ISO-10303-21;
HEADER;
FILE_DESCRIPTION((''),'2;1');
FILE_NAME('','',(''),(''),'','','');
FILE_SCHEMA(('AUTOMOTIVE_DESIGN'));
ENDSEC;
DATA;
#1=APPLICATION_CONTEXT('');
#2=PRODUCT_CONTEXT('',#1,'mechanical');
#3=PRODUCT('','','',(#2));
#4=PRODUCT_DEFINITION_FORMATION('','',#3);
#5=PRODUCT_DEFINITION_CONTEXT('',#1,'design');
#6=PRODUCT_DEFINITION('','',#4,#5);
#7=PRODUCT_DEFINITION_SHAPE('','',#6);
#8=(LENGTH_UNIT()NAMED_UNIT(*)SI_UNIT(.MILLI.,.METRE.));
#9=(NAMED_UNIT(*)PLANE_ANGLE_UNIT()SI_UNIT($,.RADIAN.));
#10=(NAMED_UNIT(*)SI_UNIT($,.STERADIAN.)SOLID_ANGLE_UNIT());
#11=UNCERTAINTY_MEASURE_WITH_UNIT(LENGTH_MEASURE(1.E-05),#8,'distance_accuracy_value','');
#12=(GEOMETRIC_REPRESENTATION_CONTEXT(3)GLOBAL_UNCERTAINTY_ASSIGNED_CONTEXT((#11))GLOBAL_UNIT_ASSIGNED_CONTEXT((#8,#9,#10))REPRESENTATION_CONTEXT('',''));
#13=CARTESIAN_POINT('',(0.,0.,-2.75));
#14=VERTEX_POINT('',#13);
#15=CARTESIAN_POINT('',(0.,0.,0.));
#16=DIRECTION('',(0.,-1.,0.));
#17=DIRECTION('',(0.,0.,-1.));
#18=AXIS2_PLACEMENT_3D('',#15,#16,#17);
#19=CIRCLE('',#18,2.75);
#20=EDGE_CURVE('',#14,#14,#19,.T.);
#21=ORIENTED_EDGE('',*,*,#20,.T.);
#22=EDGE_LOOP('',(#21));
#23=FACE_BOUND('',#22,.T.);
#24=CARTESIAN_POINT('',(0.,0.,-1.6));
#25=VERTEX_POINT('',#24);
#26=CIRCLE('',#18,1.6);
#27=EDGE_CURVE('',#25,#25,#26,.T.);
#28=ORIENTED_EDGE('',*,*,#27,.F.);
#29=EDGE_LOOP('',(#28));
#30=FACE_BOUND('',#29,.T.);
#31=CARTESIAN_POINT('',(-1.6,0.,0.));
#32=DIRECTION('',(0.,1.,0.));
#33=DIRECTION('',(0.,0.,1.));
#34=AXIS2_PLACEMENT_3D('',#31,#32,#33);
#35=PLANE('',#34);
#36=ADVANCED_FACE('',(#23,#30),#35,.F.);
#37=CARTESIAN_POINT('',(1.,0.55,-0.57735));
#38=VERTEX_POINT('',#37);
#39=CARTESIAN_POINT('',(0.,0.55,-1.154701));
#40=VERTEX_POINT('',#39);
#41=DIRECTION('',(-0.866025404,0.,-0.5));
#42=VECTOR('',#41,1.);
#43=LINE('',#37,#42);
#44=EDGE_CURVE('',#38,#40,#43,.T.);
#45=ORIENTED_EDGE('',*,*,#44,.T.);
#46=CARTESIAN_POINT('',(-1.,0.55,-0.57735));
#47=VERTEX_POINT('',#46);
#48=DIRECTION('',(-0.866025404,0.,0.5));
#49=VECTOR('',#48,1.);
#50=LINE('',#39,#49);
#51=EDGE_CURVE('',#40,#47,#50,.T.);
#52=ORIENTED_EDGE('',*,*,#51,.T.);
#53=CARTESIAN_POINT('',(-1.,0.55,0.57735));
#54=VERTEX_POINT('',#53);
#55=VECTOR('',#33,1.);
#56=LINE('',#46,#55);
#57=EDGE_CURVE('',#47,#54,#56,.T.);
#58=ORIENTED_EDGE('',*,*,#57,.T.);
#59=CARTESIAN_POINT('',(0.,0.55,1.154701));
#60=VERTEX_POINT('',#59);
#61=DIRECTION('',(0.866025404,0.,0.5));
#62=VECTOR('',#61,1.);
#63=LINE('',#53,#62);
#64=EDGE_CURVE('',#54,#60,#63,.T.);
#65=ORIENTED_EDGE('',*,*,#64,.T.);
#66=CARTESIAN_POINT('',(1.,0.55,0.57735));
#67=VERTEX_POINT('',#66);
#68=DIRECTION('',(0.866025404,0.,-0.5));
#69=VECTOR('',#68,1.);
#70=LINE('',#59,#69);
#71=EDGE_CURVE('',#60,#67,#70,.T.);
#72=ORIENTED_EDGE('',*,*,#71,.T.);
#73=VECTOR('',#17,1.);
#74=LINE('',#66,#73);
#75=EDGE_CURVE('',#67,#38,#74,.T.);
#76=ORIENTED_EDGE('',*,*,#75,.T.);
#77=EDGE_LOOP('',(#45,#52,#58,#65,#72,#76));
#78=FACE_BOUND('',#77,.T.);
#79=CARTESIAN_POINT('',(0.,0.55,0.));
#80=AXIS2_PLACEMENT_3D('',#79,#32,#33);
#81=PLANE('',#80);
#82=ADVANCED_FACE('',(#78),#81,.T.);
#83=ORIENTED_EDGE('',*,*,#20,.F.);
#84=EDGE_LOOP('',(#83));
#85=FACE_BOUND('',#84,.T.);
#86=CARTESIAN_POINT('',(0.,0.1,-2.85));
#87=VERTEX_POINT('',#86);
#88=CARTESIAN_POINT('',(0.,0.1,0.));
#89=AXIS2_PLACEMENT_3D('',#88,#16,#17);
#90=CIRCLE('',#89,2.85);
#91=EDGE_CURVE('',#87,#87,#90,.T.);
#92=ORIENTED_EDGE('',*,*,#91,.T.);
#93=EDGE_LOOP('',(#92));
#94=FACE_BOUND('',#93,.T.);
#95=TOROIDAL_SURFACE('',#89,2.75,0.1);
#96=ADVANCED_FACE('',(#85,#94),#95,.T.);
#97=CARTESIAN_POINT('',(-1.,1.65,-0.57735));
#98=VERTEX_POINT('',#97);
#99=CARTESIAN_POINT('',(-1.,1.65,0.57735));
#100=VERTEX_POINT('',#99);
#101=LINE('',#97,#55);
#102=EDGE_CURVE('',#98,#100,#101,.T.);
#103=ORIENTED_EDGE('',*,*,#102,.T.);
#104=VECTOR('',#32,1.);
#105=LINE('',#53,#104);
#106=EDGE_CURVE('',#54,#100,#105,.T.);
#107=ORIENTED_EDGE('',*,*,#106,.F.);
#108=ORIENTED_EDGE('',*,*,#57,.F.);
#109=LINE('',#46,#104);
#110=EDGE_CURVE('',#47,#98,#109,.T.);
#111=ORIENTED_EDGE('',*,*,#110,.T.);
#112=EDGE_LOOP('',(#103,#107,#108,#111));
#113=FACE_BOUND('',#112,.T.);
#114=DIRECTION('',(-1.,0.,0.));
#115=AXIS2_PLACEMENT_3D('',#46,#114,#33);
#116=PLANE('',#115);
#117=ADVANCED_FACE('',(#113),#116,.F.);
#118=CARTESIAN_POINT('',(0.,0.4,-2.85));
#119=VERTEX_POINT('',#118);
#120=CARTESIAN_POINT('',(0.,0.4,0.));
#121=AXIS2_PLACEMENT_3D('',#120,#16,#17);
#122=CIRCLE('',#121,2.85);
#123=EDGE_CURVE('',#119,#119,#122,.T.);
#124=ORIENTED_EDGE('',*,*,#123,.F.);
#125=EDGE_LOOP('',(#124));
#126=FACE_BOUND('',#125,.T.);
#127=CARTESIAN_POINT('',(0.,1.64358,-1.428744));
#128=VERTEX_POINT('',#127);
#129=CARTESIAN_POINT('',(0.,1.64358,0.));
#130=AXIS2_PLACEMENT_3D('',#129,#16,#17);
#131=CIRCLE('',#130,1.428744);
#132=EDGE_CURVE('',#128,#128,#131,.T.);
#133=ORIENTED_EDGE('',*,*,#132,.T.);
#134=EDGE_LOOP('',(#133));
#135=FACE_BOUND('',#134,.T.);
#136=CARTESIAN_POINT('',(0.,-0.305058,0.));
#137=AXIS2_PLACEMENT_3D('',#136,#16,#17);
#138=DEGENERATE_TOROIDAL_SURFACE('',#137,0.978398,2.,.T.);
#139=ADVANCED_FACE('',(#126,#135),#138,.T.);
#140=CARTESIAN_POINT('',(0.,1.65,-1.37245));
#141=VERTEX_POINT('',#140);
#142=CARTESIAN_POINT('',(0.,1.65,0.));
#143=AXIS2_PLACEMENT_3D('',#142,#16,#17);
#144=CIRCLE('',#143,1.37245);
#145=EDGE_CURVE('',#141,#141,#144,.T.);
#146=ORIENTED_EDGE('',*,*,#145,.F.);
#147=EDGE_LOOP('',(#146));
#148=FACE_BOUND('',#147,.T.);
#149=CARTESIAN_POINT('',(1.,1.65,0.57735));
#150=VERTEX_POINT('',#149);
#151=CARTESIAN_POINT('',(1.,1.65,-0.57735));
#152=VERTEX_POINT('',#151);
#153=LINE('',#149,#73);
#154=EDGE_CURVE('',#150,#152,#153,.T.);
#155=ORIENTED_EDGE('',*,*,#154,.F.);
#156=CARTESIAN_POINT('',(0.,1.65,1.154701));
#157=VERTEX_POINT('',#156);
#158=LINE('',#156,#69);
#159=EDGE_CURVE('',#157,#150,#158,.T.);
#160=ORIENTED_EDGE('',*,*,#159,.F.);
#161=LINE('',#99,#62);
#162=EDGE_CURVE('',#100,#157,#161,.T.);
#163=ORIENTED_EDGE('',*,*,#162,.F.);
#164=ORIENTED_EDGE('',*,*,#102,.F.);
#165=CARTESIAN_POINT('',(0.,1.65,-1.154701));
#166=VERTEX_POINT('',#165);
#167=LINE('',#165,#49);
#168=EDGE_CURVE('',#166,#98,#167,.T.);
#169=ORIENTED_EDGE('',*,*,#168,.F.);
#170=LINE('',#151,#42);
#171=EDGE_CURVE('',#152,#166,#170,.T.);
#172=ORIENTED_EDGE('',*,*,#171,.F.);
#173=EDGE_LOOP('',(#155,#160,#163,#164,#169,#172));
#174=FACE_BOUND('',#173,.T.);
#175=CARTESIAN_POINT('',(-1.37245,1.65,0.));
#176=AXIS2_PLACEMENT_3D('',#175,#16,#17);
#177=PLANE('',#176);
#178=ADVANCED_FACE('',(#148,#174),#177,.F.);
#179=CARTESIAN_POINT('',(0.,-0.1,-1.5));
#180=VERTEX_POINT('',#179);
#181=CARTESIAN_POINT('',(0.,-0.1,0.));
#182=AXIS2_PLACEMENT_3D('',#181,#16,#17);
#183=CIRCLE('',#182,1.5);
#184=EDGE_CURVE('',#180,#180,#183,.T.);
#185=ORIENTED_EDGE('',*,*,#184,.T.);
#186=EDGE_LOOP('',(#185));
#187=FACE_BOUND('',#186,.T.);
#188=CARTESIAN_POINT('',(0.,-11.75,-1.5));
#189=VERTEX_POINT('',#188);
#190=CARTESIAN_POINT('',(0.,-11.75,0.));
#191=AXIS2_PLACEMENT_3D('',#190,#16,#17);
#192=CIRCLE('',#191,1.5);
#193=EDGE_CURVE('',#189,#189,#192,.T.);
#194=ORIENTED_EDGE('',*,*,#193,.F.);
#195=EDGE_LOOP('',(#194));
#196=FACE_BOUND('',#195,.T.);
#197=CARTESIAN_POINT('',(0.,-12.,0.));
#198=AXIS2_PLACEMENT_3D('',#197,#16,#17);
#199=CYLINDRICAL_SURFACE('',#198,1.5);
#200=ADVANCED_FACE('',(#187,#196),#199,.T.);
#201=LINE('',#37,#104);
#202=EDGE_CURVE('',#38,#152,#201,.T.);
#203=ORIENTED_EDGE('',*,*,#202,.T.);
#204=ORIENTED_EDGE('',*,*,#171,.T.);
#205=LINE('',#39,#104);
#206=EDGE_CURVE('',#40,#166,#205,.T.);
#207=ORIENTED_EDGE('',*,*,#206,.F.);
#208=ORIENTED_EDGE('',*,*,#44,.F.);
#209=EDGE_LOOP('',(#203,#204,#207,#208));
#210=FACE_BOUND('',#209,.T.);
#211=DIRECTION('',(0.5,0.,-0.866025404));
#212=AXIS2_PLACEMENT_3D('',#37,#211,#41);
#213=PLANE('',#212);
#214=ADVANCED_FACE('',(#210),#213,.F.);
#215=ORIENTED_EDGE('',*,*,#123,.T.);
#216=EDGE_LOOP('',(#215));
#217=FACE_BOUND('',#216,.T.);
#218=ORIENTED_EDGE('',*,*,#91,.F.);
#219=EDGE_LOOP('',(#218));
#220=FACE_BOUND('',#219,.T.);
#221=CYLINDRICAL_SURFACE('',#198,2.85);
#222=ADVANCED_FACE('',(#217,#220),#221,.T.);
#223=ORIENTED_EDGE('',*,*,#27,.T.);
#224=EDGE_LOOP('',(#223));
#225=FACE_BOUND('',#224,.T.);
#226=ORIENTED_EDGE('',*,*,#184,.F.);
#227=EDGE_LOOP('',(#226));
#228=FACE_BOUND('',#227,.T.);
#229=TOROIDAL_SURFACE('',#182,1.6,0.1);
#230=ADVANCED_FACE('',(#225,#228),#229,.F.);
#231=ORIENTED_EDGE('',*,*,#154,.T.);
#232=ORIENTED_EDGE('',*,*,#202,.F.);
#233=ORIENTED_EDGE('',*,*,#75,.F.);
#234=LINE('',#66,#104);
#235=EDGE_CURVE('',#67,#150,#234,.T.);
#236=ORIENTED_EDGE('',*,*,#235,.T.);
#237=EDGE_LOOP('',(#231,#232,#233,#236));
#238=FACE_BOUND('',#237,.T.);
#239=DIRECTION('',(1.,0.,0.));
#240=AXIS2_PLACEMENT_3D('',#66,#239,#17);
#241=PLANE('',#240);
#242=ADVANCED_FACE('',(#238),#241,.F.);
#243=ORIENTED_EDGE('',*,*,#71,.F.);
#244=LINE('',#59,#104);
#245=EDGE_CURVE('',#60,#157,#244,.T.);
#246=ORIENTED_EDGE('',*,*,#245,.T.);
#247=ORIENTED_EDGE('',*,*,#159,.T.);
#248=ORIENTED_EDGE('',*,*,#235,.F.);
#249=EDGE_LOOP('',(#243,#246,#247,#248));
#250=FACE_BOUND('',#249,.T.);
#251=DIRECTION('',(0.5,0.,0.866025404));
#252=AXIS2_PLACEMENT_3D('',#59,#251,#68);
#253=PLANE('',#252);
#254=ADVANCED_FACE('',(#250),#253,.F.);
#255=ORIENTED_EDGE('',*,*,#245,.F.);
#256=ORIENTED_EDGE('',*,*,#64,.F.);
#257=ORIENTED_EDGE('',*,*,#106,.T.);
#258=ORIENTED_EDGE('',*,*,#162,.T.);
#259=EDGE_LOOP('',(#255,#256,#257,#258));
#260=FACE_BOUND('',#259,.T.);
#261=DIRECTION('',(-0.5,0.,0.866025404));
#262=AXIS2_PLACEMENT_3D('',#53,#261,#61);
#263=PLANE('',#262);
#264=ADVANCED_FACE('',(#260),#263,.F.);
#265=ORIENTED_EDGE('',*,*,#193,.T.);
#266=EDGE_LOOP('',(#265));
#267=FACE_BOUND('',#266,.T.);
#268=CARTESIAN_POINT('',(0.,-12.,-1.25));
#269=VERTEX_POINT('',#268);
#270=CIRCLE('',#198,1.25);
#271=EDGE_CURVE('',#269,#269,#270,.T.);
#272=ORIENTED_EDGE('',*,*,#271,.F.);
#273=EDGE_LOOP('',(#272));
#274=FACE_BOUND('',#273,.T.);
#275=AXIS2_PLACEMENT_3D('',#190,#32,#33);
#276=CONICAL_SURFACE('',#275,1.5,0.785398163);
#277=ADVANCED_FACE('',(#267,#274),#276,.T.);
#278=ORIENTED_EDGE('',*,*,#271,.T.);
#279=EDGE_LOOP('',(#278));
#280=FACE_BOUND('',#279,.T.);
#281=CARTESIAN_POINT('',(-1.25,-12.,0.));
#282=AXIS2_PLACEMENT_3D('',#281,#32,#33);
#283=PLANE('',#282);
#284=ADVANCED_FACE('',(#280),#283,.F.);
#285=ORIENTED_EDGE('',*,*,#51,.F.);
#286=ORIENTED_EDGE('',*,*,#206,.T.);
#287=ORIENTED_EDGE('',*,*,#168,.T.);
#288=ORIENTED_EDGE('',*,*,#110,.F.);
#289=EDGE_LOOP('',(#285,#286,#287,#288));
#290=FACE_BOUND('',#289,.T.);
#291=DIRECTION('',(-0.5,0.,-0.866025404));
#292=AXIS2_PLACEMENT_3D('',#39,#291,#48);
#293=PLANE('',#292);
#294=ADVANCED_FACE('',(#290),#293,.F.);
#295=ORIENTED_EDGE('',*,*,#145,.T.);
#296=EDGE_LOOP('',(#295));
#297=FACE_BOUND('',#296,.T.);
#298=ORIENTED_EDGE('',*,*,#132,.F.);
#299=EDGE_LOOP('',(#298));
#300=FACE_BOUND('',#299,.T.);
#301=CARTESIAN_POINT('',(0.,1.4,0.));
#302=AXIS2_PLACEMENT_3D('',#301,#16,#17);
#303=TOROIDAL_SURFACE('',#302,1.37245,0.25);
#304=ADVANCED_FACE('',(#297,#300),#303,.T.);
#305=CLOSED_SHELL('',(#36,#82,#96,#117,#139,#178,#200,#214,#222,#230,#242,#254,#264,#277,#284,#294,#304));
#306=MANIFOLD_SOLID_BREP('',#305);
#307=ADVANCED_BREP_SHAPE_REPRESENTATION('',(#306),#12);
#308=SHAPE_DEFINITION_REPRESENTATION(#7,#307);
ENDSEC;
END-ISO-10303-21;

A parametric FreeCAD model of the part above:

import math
import FreeCAD as App
import Part
import Sketcher

V = App.Vector
Q = App.Units.Quantity


def add_polygon(sketch, points):
    """Adds a closed chain of lines whose ends are joined by coincident constraints."""
    first, n = sketch.GeometryCount, len(points)
    for a, b in zip(points, points[1:] + points[:1]):
        sketch.addGeometry(Part.LineSegment(App.Vector(*a, 0), App.Vector(*b, 0)), False)
    for i in range(n):
        sketch.addConstraint(Sketcher.Constraint("Coincident", first + i, 2, first + (i + 1) % n, 1))

doc = App.newDocument("Part")
body = doc.addObject("PartDesign::Body", "Body")

sketch1 = doc.addObject("Sketcher::SketchObject", "Sketch")
body.addObject(sketch1)
sketch1.AttachmentSupport = (doc.XY_Plane, [""])
sketch1.MapMode = "FlatFace"
sketch1.addGeometry([
    Part.LineSegment(V(-1.5, -0.1, 0), V(-1.5, -11.75, 0)),
    Part.LineSegment(V(-1.5, -11.75, 0), V(-1.25, -12, 0)),
    Part.LineSegment(V(-1.25, -12, 0), V(0, -12, 0)),
    Part.LineSegment(V(0, -12, 0), V(0, 1.65, 0)),
    Part.LineSegment(V(0, 1.65, 0), V(-1.37, 1.65, 0)),
    Part.ArcOfCircle(Part.Circle(V(-1.37, 1.4, 0), V(0, 0, 1), 0.25), math.radians(90), math.radians(103.01)),
    Part.ArcOfCircle(Part.Circle(V(-0.98, -0.31, 0), V(0, 0, 1), 2), math.radians(103), math.radians(159)),
    Part.LineSegment(V(-2.85, 0.4, 0), V(-2.85, 0.1, 0)),
    Part.ArcOfCircle(Part.Circle(V(-2.75, 0.1, 0), V(0, 0, 1), 0.1), math.radians(180), math.radians(270)),
    Part.LineSegment(V(-2.75, 0, 0), V(-1.6, 0, 0)),
    Part.ArcOfCircle(Part.Circle(V(-1.6, -0.1, 0), V(0, 0, 1), 0.1), math.radians(0), math.radians(90)),
], False)
sketch1.addConstraint([
    Sketcher.Constraint("Coincident", 0, 2, 1, 1),
    Sketcher.Constraint("Coincident", 1, 2, 2, 1),
    Sketcher.Constraint("Coincident", 2, 2, 3, 1),
    Sketcher.Constraint("Coincident", 3, 2, 4, 1),
    Sketcher.Constraint("Tangent", 4, 2, 5, 1),
    Sketcher.Constraint("Tangent", 5, 2, 6, 1),
    Sketcher.Constraint("Coincident", 6, 2, 7, 1),
    Sketcher.Constraint("Tangent", 7, 2, 8, 1),
    Sketcher.Constraint("Tangent", 8, 2, 9, 1),
    Sketcher.Constraint("Tangent", 9, 2, 10, 2),
    Sketcher.Constraint("Tangent", 10, 1, 0, 1),
    Sketcher.Constraint("Vertical", 0),
    Sketcher.Constraint("Horizontal", 2),
    Sketcher.Constraint("Vertical", 3),
    Sketcher.Constraint("Horizontal", 4),
    Sketcher.Constraint("Vertical", 7),
    Sketcher.Constraint("Horizontal", 9),
    Sketcher.Constraint("Equal", 8, 10),
    Sketcher.Constraint("PointOnObject", 2, 2, -2),
    Sketcher.Constraint("PointOnObject", 8, 2, -1),
    Sketcher.Constraint("Radius", 6, Q("2 mm")),
    Sketcher.Constraint("Radius", 8, Q("0.1 mm")),
    Sketcher.Constraint("Angle", 1, Q("-45 deg")),
    Sketcher.Constraint("Radius", 5, Q("0.25 mm")),
    Sketcher.Constraint("DistanceY", 7, 2, 7, 1, Q("0.3 mm")),
    Sketcher.Constraint("DistanceY", 1, 2, -1, 1, Q("12 mm")),
    Sketcher.Constraint("DistanceY", 6, 2, 5, 3, Q("1 mm")),
    Sketcher.Constraint("DistanceX", 2, 1, 2, 2, Q("1.25 mm")),
    Sketcher.Constraint("DistanceX", 9, 1, 9, 2, Q("1.15 mm")),
    Sketcher.Constraint("DistanceY", 0, 2, 0, 1, Q("11.65 mm")),
    Sketcher.Constraint("DistanceX", 4, 2, 4, 1, Q("1.37245 mm")),
])
revolution = doc.addObject("PartDesign::Revolution", "Revolution")
body.addObject(revolution)
revolution.Profile = sketch1
revolution.ReferenceAxis = (sketch1, ["V_Axis"])
revolution.Angle = 360

sketch2 = doc.addObject("Sketcher::SketchObject", "Sketch001")
body.addObject(sketch2)
sketch2.AttachmentSupport = (doc.XZ_Plane, [""])
sketch2.MapMode = "FlatFace"
sketch2.AttachmentOffset = App.Placement(V(0, 0, -1.65), App.Rotation())
add_polygon(sketch2, [(-1, -0.6), (-1, 0.6), (0, 1.2), (1, 0.6), (1, -0.6), (0, -1.2)])
sketch2.addConstraint([
    Sketcher.Constraint("Vertical", 0),
    Sketcher.Constraint("Vertical", 3),
    Sketcher.Constraint("Symmetric", 0, 2, 3, 2, -1, 1),
    Sketcher.Constraint("Symmetric", 1, 2, 4, 2, -1, 1),
    Sketcher.Constraint("PointOnObject", 1, 2, -2),
    Sketcher.Constraint("Parallel", 2, 5),
    Sketcher.Constraint("Horizontal", 0, 2, 2, 2),
    Sketcher.Constraint("Angle", 1, Q("30 deg")),
    Sketcher.Constraint("DistanceX", 0, 2, -1, 1, Q("1 mm")),
    Sketcher.Constraint("DistanceY", 0, 1, 0, 2, Q("1.154701 mm")),
])
pocket1 = doc.addObject("PartDesign::Pocket", "Pocket")
body.addObject(pocket1)
pocket1.Profile = sketch2
pocket1.Length = 1.1
pocket1.Reversed = True

doc.recompute()
